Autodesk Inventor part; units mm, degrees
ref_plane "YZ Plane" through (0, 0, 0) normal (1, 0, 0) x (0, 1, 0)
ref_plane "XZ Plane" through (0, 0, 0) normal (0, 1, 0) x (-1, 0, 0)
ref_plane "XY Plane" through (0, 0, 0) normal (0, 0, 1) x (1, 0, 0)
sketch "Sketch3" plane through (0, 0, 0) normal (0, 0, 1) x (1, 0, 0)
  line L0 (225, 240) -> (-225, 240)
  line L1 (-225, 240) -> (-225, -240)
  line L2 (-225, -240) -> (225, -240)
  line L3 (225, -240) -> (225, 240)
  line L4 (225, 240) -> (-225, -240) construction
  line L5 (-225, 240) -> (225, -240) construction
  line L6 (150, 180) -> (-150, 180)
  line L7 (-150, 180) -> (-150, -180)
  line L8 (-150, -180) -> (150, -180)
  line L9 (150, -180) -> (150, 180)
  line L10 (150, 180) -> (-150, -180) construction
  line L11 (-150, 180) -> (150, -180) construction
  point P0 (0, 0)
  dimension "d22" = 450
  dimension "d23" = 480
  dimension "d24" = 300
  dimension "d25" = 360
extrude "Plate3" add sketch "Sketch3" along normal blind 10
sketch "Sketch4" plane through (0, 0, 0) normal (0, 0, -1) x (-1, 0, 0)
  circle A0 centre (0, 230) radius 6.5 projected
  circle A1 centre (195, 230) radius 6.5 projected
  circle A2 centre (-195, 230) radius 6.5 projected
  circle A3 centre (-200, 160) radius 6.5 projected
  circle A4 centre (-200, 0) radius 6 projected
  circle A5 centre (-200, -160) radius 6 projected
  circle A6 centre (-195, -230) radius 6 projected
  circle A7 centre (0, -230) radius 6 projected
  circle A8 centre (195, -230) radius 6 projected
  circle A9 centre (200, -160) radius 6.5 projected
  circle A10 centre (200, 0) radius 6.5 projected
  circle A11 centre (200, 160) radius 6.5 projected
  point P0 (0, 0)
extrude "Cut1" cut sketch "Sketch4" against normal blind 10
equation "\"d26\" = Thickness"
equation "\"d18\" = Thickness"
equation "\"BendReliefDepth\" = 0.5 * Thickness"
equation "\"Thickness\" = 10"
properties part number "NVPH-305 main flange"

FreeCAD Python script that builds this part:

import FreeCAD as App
import Part
import Sketcher

V = App.Vector
Q = App.Units.Quantity

doc = App.newDocument("Part")
body = doc.addObject("PartDesign::Body", "Body")

sketch1 = body.newObject("Sketcher::SketchObject", "Sketch")
sketch1.AttachmentSupport = (doc.getObject("XY_Plane"), [""])
sketch1.MapMode = "FlatFace"
sketch1.addGeometry([
    Part.LineSegment(V(225, -240, 0), V(225, 240, 0)),
    Part.LineSegment(V(225, 240, 0), V(-225, 240, 0)),
    Part.LineSegment(V(-225, 240, 0), V(-225, -240, 0)),
    Part.LineSegment(V(-225, -240, 0), V(225, -240, 0)),
    Part.LineSegment(V(-150, 180, 0), V(150, 180, 0)),
    Part.LineSegment(V(150, 180, 0), V(150, -180, 0)),
    Part.LineSegment(V(150, -180, 0), V(-150, -180, 0)),
    Part.LineSegment(V(-150, -180, 0), V(-150, 180, 0)),
], False)
sketch1.addConstraint([
    Sketcher.Constraint("Coincident", 0, 2, 1, 1),
    Sketcher.Constraint("Coincident", 1, 2, 2, 1),
    Sketcher.Constraint("Coincident", 2, 2, 3, 1),
    Sketcher.Constraint("Coincident", 3, 2, 0, 1),
    Sketcher.Constraint("Coincident", 4, 2, 5, 1),
    Sketcher.Constraint("Coincident", 5, 2, 6, 1),
    Sketcher.Constraint("Coincident", 6, 2, 7, 1),
    Sketcher.Constraint("Coincident", 7, 2, 4, 1),
    Sketcher.Constraint("Vertical", 0),
    Sketcher.Constraint("Horizontal", 1),
    Sketcher.Constraint("Vertical", 2),
    Sketcher.Constraint("Horizontal", 3),
    Sketcher.Constraint("Horizontal", 4),
    Sketcher.Constraint("Vertical", 5),
    Sketcher.Constraint("Horizontal", 6),
    Sketcher.Constraint("Vertical", 7),
    Sketcher.Constraint("Symmetric", 0, 2, 2, 2, -1, 1),
    Sketcher.Constraint("Symmetric", 4, 2, 6, 2, -1, 1),
    Sketcher.Constraint("DistanceX", 1, 2, 1, 1, Q("450 mm")),
    Sketcher.Constraint("DistanceX", 4, 1, 4, 2, Q("300 mm")),
    Sketcher.Constraint("DistanceY", 0, 1, 0, 2, Q("480 mm")),
    Sketcher.Constraint("DistanceY", 5, 2, 5, 1, Q("360 mm")),
])
pad1 = body.newObject("PartDesign::Pad", "Pad")
pad1.Profile = sketch1
pad1.Length = 10

sketch2 = body.newObject("Sketcher::SketchObject", "Sketch001")
sketch2.AttachmentSupport = (doc.getObject("XY_Plane"), [""])
sketch2.MapMode = "FlatFace"
sketch2.addGeometry([
    Part.Circle(V(0, 230, 0), V(0, 0, 1), 6),
    Part.Circle(V(-195, 230, 0), V(0, 0, 1), 6),
    Part.Circle(V(195, 230, 0), V(0, 0, 1), 6),
    Part.Circle(V(200, 160, 0), V(0, 0, 1), 6),
    Part.Circle(V(200, 0, 0), V(0, 0, 1), 6),
    Part.Circle(V(200, -160, 0), V(0, 0, 1), 6),
    Part.Circle(V(195, -230, 0), V(0, 0, 1), 6),
    Part.Circle(V(0, -230, 0), V(0, 0, 1), 6),
    Part.Circle(V(-195, -230, 0), V(0, 0, 1), 6),
    Part.Circle(V(-200, -160, 0), V(0, 0, 1), 6),
    Part.Circle(V(-200, 0, 0), V(0, 0, 1), 6),
    Part.Circle(V(-200, 160, 0), V(0, 0, 1), 6),
], False)
sketch2.addConstraint([
    Sketcher.Constraint("Equal", 0, 1),
    Sketcher.Constraint("Equal", 1, 2),
    Sketcher.Constraint("Equal", 2, 3),
    Sketcher.Constraint("Equal", 4, 5),
    Sketcher.Constraint("Equal", 5, 6),
    Sketcher.Constraint("Equal", 6, 7),
    Sketcher.Constraint("Equal", 7, 8),
    Sketcher.Constraint("Equal", 3, 9),
    Sketcher.Constraint("Equal", 9, 10),
    Sketcher.Constraint("Equal", 10, 11),
    Sketcher.Constraint("Symmetric", 1, 3, 6, 3, -1, 1),
    Sketcher.Constraint("Symmetric", 0, 3, 7, 3, -1, 1),
    Sketcher.Constraint("Symmetric", 2, 3, 8, 3, -1, 1),
    Sketcher.Constraint("Symmetric", 3, 3, 9, 3, -1, 1),
    Sketcher.Constraint("Symmetric", 4, 3, 10, 3, -1, 1),
    Sketcher.Constraint("Symmetric", 5, 3, 11, 3, -1, 1),
    Sketcher.Constraint("Symmetric", 1, 3, 2, 3, -2),
    Sketcher.Constraint("Symmetric", 5, 3, 9, 3, -2),
    Sketcher.Constraint("PointOnObject", 0, 3, -2),
    Sketcher.Constraint("PointOnObject", 4, 3, -1),
    Sketcher.Constraint("Horizontal", 0, 3, 1, 3),
    Sketcher.Constraint("Vertical", 3, 3, 4, 3),
    Sketcher.Constraint("Diameter", 0, Q("13 mm")),
    Sketcher.Constraint("Diameter", 4, Q("12 mm")),
    Sketcher.Constraint("DistanceY", -1, 1, 0, 3, Q("230 mm")),
    Sketcher.Constraint("DistanceX", 1, 3, -1, 1, Q("195 mm")),
    Sketcher.Constraint("DistanceX", -1, 1, 3, 3, Q("200 mm")),
    Sketcher.Constraint("DistanceY", -1, 1, 3, 3, Q("160 mm")),
])
pocket1 = body.newObject("PartDesign::Pocket", "Pocket")
pocket1.Profile = sketch2
pocket1.Length = 10
pocket1.Reversed = True

doc.recompute()
